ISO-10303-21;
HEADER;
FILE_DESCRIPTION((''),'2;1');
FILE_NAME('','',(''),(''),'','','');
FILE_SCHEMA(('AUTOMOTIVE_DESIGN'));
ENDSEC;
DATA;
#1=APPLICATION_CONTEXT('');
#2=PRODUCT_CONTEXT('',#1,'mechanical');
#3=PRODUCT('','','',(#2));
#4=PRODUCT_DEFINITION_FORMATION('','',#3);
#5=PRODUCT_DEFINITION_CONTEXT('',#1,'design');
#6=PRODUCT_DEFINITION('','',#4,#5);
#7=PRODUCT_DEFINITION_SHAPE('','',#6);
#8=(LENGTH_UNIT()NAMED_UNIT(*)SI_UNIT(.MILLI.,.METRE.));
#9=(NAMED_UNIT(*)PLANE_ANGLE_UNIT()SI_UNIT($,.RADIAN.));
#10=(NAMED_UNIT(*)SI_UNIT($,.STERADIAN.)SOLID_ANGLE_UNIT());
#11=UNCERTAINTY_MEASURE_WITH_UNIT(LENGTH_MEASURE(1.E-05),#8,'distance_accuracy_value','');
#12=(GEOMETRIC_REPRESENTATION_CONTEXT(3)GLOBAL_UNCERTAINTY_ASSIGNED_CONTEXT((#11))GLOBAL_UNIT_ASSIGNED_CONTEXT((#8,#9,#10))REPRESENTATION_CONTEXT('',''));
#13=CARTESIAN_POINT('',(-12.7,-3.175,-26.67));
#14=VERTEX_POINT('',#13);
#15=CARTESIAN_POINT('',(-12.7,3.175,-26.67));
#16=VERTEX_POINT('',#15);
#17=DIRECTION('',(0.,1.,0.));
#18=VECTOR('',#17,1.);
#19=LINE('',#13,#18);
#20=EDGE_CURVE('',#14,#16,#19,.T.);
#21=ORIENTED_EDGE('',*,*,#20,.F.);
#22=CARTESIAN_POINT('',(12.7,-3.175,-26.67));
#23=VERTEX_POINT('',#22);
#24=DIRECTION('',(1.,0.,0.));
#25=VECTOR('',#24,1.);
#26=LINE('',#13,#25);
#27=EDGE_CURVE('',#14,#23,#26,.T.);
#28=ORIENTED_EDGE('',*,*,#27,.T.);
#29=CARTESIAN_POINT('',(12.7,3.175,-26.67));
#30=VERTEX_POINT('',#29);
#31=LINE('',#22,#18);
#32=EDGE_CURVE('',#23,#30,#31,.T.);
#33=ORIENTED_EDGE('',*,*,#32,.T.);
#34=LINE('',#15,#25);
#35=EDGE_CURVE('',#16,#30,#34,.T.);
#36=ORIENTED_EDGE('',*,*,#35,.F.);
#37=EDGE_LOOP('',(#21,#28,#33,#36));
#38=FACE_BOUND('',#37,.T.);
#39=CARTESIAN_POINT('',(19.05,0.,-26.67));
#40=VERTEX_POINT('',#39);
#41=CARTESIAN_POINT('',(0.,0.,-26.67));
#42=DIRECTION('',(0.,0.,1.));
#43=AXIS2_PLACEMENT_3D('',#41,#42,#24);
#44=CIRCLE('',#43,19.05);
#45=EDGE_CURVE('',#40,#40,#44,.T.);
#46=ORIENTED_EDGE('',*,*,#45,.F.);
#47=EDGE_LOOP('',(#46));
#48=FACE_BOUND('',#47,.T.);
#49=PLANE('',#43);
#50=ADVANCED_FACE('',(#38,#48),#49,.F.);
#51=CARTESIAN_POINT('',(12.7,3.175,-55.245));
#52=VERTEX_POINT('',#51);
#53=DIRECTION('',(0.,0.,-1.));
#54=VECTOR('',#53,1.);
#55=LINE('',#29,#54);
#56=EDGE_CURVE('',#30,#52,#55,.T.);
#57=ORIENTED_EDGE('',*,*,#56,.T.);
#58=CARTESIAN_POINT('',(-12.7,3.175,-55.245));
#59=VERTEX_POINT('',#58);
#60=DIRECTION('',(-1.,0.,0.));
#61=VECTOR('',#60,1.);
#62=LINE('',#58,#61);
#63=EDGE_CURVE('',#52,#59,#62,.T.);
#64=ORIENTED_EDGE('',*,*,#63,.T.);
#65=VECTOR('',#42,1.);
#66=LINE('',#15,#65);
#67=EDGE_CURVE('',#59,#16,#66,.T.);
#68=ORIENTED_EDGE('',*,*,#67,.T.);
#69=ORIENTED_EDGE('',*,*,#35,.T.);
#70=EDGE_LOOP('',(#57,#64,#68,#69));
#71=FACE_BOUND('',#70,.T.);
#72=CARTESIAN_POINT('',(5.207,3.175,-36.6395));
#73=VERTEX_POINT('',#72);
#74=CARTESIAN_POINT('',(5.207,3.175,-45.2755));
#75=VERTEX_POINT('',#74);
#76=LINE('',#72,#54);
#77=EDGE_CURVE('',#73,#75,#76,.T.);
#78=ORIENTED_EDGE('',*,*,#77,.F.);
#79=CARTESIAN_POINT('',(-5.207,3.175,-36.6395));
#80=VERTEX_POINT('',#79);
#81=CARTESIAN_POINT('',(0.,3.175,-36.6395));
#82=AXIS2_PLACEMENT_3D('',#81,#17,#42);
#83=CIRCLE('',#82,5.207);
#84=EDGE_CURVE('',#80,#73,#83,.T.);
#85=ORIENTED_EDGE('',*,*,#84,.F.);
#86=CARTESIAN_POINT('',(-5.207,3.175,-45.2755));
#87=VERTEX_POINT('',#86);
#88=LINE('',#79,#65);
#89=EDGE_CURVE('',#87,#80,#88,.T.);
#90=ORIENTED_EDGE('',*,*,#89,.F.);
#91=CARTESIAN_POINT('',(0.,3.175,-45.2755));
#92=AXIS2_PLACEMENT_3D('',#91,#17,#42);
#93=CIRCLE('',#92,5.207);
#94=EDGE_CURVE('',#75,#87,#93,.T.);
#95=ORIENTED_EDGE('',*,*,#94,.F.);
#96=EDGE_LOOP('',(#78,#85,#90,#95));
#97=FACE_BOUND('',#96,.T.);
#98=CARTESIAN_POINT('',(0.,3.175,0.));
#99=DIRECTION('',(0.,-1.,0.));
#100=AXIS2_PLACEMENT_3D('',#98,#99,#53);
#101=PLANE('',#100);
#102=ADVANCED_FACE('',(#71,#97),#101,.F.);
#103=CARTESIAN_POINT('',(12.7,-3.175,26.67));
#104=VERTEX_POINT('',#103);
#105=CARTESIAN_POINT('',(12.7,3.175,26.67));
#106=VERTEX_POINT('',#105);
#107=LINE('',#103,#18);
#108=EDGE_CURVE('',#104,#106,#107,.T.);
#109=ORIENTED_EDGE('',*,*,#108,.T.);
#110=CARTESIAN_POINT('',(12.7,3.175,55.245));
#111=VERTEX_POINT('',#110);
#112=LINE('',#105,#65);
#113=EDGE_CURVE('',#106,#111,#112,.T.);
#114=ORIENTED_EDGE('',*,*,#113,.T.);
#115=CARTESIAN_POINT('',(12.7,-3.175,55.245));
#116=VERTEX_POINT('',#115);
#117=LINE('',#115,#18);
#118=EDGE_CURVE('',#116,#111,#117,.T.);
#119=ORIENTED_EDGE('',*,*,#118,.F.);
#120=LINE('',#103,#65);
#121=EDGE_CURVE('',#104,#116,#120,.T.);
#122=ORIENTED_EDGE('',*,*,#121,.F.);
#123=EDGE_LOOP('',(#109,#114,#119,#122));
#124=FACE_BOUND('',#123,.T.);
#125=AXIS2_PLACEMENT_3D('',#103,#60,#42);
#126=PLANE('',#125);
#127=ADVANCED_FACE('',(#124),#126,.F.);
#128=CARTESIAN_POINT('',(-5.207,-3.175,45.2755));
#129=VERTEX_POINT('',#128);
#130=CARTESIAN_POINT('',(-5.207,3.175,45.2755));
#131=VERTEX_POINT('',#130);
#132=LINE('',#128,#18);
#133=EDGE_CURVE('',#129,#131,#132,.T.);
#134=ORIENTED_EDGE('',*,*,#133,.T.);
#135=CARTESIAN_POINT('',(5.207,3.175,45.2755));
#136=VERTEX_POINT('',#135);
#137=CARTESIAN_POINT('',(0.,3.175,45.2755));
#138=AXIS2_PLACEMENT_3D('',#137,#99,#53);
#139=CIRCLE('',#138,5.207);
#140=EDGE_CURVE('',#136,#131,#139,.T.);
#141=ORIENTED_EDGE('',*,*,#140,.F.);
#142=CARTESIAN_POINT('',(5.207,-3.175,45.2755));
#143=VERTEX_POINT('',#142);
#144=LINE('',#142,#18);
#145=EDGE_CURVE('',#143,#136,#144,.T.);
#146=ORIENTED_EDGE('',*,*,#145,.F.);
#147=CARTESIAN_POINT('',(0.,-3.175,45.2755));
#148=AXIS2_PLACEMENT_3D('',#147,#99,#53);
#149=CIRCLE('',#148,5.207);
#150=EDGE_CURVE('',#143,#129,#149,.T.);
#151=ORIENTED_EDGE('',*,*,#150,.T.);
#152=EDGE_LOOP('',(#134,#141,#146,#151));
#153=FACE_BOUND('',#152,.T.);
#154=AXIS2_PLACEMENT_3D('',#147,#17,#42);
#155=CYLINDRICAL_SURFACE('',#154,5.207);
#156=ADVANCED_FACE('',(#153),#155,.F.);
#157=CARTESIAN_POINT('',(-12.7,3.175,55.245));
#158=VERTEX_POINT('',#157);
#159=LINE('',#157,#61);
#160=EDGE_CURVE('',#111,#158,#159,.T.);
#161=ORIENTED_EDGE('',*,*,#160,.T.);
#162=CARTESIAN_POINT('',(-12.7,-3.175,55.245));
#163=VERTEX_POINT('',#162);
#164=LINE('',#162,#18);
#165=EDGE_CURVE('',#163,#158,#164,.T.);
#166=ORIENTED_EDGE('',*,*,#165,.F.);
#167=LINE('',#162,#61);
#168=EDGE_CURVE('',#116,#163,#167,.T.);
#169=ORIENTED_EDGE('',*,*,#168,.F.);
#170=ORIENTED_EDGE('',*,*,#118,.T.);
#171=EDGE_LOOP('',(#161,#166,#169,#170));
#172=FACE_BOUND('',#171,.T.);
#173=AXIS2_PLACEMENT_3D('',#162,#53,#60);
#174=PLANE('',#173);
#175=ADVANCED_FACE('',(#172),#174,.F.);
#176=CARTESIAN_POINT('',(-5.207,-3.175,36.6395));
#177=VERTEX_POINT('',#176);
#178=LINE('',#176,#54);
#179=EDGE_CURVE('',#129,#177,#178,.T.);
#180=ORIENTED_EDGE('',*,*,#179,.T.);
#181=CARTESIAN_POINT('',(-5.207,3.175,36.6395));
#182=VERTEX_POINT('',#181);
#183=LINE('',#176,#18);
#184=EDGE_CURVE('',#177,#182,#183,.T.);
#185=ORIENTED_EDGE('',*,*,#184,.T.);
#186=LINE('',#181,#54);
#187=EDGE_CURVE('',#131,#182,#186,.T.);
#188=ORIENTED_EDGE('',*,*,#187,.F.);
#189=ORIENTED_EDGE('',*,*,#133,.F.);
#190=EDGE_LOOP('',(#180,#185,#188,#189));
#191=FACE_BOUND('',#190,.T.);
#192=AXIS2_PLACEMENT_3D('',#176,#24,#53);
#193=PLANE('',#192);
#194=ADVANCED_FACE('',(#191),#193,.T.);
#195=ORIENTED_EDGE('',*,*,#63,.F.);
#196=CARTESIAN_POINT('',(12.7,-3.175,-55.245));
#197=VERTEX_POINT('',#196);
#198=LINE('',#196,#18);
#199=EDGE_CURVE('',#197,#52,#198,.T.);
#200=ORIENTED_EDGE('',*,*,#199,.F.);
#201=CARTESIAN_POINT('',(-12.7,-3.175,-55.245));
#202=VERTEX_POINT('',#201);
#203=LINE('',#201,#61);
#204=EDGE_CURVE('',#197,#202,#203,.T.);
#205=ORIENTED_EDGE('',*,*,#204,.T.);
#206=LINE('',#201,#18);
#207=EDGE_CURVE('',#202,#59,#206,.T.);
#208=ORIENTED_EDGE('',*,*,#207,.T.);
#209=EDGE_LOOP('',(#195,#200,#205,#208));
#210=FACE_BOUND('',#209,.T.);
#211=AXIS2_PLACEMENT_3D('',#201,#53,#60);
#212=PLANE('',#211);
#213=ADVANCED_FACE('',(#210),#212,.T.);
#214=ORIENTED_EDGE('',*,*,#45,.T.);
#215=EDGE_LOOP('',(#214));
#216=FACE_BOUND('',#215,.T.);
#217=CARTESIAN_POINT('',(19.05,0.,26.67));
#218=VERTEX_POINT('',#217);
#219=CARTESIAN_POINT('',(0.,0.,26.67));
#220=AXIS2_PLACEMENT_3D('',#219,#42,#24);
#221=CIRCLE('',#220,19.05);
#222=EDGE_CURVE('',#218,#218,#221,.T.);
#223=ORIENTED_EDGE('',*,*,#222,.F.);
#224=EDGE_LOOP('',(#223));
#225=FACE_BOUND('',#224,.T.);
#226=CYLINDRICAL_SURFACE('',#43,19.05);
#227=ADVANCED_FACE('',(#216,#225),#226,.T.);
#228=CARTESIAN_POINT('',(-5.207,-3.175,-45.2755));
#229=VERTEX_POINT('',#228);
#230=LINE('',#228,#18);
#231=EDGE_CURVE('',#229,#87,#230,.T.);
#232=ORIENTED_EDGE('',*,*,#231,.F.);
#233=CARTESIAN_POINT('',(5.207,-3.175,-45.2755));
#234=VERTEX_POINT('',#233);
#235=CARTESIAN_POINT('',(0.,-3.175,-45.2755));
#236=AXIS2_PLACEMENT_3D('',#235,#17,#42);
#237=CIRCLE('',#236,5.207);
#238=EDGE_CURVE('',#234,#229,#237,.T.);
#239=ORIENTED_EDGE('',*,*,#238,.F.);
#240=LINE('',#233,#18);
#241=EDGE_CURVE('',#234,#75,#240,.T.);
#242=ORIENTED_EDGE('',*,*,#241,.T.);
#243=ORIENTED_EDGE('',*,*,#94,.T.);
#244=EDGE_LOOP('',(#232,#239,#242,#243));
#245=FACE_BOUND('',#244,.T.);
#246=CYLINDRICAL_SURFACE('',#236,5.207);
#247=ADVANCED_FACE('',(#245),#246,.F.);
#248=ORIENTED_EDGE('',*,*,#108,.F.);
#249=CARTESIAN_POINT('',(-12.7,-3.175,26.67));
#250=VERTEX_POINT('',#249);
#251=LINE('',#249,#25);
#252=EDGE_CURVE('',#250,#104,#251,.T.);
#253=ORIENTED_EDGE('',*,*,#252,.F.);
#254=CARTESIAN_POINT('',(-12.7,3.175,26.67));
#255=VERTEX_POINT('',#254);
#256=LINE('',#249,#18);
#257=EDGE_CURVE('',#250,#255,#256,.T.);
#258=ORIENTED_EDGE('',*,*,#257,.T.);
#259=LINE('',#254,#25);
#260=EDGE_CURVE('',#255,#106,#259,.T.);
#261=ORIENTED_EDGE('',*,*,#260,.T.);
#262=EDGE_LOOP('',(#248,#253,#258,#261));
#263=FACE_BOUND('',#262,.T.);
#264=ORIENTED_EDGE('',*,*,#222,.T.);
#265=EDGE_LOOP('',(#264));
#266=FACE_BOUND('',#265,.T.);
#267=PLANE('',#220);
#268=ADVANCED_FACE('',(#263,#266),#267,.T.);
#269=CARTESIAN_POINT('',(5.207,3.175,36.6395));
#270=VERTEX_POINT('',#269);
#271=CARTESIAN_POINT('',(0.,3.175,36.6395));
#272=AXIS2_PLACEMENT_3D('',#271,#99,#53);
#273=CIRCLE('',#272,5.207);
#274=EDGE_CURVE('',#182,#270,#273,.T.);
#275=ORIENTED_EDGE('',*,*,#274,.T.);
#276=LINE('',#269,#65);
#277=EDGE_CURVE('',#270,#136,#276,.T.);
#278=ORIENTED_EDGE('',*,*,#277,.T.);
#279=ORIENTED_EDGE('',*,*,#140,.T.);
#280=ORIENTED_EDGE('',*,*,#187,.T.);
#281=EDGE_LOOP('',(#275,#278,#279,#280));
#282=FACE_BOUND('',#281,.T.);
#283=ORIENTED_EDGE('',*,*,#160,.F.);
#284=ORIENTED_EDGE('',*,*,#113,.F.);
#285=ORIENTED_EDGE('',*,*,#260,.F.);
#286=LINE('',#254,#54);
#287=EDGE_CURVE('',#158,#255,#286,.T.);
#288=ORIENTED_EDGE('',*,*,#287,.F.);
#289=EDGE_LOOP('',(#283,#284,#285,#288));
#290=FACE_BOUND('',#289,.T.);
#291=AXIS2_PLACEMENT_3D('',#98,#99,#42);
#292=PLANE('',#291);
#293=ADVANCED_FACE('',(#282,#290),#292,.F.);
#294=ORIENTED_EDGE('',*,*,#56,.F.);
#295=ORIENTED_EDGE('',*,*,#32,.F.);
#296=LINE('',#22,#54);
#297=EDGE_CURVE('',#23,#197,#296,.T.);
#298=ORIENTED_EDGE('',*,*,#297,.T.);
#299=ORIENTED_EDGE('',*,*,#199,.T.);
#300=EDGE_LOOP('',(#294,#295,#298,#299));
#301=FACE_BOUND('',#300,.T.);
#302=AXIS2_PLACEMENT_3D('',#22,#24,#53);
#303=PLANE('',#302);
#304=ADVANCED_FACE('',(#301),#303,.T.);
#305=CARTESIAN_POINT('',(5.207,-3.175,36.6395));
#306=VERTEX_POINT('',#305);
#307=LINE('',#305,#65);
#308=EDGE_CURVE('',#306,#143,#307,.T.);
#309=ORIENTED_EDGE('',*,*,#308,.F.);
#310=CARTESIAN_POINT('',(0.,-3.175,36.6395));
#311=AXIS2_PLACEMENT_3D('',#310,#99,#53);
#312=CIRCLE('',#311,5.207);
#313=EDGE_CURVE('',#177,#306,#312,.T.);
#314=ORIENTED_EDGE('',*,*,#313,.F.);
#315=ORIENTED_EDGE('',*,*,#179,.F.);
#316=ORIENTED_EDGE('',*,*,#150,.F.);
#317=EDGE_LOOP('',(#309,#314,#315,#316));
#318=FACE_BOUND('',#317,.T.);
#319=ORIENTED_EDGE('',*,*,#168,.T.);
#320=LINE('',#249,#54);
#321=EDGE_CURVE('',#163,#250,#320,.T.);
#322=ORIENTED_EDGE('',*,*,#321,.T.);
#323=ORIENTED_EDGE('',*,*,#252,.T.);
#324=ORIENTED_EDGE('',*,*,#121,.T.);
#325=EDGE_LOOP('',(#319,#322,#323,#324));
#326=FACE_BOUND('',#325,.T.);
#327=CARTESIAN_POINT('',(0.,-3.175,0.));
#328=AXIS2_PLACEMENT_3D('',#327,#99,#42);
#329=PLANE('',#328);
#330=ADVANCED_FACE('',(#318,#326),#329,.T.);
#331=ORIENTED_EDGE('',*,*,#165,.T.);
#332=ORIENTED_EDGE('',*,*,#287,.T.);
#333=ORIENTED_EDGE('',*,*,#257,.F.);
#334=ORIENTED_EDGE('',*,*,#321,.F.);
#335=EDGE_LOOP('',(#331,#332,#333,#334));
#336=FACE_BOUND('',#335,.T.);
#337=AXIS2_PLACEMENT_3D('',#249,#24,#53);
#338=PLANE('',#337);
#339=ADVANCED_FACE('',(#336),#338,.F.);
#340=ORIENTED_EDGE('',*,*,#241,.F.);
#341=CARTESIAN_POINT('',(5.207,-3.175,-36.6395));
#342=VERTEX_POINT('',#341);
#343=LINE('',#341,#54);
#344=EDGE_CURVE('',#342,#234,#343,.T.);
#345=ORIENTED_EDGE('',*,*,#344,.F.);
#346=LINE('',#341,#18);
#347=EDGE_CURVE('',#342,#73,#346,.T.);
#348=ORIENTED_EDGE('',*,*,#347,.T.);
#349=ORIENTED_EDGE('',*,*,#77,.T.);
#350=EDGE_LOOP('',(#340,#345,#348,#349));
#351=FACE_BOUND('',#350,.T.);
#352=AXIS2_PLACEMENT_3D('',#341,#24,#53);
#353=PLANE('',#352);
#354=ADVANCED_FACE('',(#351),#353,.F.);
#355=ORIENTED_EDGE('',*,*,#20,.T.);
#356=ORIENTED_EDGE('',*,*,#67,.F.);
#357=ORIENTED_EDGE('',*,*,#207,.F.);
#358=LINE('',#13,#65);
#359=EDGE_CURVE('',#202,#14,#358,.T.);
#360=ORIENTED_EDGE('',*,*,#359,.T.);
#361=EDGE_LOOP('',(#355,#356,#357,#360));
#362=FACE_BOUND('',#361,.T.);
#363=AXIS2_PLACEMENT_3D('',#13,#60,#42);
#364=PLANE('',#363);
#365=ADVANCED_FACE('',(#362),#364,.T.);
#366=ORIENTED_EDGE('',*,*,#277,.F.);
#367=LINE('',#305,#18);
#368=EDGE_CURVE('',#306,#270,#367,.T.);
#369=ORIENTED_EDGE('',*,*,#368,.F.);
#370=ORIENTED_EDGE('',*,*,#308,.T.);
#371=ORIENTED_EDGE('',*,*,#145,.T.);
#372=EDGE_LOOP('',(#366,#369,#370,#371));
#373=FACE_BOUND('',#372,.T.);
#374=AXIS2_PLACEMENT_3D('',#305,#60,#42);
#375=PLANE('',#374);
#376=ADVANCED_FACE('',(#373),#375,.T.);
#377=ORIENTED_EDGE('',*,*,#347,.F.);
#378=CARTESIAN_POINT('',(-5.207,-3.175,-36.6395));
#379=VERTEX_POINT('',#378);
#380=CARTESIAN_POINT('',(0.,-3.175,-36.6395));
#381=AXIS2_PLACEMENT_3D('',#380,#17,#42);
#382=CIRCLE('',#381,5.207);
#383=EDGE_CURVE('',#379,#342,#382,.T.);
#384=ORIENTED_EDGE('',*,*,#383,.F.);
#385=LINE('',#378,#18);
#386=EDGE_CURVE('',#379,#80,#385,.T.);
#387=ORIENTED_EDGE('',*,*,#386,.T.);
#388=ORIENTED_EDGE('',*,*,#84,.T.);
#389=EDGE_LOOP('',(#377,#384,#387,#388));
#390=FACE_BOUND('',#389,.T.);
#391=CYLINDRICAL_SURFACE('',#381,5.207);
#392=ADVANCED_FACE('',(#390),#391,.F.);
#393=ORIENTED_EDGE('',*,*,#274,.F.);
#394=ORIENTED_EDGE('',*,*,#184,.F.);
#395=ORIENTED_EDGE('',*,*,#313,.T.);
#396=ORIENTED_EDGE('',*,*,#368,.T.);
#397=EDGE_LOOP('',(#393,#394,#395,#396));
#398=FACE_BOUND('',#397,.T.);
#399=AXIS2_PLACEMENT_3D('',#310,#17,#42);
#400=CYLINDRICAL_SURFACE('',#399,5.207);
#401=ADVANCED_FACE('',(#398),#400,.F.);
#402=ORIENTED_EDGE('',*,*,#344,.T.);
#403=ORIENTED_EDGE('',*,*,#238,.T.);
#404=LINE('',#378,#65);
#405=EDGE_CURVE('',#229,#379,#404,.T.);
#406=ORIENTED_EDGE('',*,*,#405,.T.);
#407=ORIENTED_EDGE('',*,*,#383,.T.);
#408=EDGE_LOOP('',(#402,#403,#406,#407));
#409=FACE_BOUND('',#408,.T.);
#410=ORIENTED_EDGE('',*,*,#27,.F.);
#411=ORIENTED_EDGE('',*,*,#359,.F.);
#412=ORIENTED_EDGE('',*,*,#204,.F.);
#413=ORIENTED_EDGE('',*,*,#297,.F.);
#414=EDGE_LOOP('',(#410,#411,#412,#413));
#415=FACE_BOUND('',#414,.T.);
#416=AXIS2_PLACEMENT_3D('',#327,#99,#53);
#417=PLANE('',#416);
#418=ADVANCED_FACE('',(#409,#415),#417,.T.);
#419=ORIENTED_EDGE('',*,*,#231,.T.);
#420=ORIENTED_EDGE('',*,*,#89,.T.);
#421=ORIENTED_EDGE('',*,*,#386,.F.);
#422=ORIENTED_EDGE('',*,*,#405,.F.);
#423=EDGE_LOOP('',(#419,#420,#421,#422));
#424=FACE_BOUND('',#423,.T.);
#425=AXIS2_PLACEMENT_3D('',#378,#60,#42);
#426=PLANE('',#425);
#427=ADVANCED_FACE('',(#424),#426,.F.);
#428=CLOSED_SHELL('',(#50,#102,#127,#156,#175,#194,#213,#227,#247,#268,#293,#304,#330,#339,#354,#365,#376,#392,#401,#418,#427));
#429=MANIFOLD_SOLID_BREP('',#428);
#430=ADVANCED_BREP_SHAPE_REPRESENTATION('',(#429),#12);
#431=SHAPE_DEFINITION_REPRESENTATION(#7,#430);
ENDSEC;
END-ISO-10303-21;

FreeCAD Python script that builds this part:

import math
import FreeCAD as App
import Part
import Sketcher

V = App.Vector
Q = App.Units.Quantity

doc = App.newDocument("Part")
body = doc.addObject("PartDesign::Body", "Body")

sketch1 = body.newObject("Sketcher::SketchObject", "Sketch")
sketch1.AttachmentSupport = (doc.getObject("XY_Plane"), [""])
sketch1.MapMode = "FlatFace"
sketch1.addGeometry(Part.Circle(V(0, 0, 0), V(0, 0, 1), 19), False)
sketch1.addConstraint(Sketcher.Constraint("Coincident", 0, 3, -1, 1))
sketch1.addConstraint(Sketcher.Constraint("Diameter", 0, Q("1.5 in")))
pad1 = body.newObject("PartDesign::Pad", "Pad")
pad1.Profile = sketch1
pad1.Type = "TwoLengths"
pad1.Length = Q("1.05 in")
pad1.Length2 = Q("1.05 in")

sketch2 = body.newObject("Sketcher::SketchObject", "Sketch001")
sketch2.AttachmentSupport = (doc.getObject("XZ_Plane"), [""])
sketch2.MapMode = "FlatFace"
sketch2.addGeometry(Part.LineSegment(V(-13, -55, 0), V(-13, -27, 0)), False)
sketch2.addGeometry(Part.LineSegment(V(-13, -27, 0), V(13, -27, 0)), False)
sketch2.addGeometry(Part.LineSegment(V(13, -27, 0), V(13, -55, 0)), False)
sketch2.addGeometry(Part.LineSegment(V(13, -55, 0), V(-13, -55, 0)), False)
sketch2.addGeometry(Part.ArcOfCircle(Part.Circle(V(0, -37, 0), V(0, 0, 1), 5), math.radians(0), math.radians(180)), False)
sketch2.addGeometry(Part.LineSegment(V(-5, -37, 0), V(-5, -45, 0)), False)
sketch2.addGeometry(Part.ArcOfCircle(Part.Circle(V(0, -45, 0), V(0, 0, 1), 5), math.radians(180), math.radians(360)), False)
sketch2.addGeometry(Part.LineSegment(V(5, -45, 0), V(5, -37, 0)), False)
sketch2.addConstraint(Sketcher.Constraint("Coincident", 0, 2, 1, 1))
sketch2.addConstraint(Sketcher.Constraint("Coincident", 1, 2, 2, 1))
sketch2.addConstraint(Sketcher.Constraint("Coincident", 2, 2, 3, 1))
sketch2.addConstraint(Sketcher.Constraint("Coincident", 3, 2, 0, 1))
sketch2.addConstraint(Sketcher.Constraint("Tangent", 4, 2, 5, 1))
sketch2.addConstraint(Sketcher.Constraint("Tangent", 5, 2, 6, 1))
sketch2.addConstraint(Sketcher.Constraint("Tangent", 6, 2, 7, 1))
sketch2.addConstraint(Sketcher.Constraint("Tangent", 7, 2, 4, 1))
sketch2.addConstraint(Sketcher.Constraint("Vertical", 0))
sketch2.addConstraint(Sketcher.Constraint("Horizontal", 1))
sketch2.addConstraint(Sketcher.Constraint("Vertical", 2))
sketch2.addConstraint(Sketcher.Constraint("Horizontal", 3))
sketch2.addConstraint(Sketcher.Constraint("Vertical", 5))
sketch2.addConstraint(Sketcher.Constraint("Vertical", 7))
sketch2.addConstraint(Sketcher.Constraint("PointOnObject", 4, 3, -2))
sketch2.addConstraint(Sketcher.Constraint("DistanceX", 1, 1, 1, 2, Q("1 in")))
sketch2.addConstraint(Sketcher.Constraint("Radius", 4, Q("0.205 in")))
sketch2.addConstraint(Sketcher.Constraint("DistanceY", 5, 2, 5, 1, Q("0.34 in")))
sketch2.addConstraint(Sketcher.Constraint("DistanceX", 0, 2, -1, 1, Q("0.5 in")))
sketch2.addConstraint(Sketcher.Constraint("DistanceY", 0, 1, 0, 2, Q("1.125 in")))
sketch2.addConstraint(Sketcher.Constraint("DistanceY", 0, 2, -1, 1, Q("1.05 in")))
sketch2.addConstraint(Sketcher.Constraint("DistanceY", 4, 3, -1, 1, Q("1.4425 in")))
pad2 = body.newObject("PartDesign::Pad", "Pad001")
pad2.Profile = sketch2
pad2.Length = Q("0.25 in")
pad2.Midplane = True
doc.recompute()

mirrored = body.newObject("PartDesign::Mirrored", "Mirrored")
mirrored.Originals = [pad2]
mirrored.MirrorPlane = (doc.getObject("XY_Plane"), [""])
body.Tip = mirrored

doc.recompute()
